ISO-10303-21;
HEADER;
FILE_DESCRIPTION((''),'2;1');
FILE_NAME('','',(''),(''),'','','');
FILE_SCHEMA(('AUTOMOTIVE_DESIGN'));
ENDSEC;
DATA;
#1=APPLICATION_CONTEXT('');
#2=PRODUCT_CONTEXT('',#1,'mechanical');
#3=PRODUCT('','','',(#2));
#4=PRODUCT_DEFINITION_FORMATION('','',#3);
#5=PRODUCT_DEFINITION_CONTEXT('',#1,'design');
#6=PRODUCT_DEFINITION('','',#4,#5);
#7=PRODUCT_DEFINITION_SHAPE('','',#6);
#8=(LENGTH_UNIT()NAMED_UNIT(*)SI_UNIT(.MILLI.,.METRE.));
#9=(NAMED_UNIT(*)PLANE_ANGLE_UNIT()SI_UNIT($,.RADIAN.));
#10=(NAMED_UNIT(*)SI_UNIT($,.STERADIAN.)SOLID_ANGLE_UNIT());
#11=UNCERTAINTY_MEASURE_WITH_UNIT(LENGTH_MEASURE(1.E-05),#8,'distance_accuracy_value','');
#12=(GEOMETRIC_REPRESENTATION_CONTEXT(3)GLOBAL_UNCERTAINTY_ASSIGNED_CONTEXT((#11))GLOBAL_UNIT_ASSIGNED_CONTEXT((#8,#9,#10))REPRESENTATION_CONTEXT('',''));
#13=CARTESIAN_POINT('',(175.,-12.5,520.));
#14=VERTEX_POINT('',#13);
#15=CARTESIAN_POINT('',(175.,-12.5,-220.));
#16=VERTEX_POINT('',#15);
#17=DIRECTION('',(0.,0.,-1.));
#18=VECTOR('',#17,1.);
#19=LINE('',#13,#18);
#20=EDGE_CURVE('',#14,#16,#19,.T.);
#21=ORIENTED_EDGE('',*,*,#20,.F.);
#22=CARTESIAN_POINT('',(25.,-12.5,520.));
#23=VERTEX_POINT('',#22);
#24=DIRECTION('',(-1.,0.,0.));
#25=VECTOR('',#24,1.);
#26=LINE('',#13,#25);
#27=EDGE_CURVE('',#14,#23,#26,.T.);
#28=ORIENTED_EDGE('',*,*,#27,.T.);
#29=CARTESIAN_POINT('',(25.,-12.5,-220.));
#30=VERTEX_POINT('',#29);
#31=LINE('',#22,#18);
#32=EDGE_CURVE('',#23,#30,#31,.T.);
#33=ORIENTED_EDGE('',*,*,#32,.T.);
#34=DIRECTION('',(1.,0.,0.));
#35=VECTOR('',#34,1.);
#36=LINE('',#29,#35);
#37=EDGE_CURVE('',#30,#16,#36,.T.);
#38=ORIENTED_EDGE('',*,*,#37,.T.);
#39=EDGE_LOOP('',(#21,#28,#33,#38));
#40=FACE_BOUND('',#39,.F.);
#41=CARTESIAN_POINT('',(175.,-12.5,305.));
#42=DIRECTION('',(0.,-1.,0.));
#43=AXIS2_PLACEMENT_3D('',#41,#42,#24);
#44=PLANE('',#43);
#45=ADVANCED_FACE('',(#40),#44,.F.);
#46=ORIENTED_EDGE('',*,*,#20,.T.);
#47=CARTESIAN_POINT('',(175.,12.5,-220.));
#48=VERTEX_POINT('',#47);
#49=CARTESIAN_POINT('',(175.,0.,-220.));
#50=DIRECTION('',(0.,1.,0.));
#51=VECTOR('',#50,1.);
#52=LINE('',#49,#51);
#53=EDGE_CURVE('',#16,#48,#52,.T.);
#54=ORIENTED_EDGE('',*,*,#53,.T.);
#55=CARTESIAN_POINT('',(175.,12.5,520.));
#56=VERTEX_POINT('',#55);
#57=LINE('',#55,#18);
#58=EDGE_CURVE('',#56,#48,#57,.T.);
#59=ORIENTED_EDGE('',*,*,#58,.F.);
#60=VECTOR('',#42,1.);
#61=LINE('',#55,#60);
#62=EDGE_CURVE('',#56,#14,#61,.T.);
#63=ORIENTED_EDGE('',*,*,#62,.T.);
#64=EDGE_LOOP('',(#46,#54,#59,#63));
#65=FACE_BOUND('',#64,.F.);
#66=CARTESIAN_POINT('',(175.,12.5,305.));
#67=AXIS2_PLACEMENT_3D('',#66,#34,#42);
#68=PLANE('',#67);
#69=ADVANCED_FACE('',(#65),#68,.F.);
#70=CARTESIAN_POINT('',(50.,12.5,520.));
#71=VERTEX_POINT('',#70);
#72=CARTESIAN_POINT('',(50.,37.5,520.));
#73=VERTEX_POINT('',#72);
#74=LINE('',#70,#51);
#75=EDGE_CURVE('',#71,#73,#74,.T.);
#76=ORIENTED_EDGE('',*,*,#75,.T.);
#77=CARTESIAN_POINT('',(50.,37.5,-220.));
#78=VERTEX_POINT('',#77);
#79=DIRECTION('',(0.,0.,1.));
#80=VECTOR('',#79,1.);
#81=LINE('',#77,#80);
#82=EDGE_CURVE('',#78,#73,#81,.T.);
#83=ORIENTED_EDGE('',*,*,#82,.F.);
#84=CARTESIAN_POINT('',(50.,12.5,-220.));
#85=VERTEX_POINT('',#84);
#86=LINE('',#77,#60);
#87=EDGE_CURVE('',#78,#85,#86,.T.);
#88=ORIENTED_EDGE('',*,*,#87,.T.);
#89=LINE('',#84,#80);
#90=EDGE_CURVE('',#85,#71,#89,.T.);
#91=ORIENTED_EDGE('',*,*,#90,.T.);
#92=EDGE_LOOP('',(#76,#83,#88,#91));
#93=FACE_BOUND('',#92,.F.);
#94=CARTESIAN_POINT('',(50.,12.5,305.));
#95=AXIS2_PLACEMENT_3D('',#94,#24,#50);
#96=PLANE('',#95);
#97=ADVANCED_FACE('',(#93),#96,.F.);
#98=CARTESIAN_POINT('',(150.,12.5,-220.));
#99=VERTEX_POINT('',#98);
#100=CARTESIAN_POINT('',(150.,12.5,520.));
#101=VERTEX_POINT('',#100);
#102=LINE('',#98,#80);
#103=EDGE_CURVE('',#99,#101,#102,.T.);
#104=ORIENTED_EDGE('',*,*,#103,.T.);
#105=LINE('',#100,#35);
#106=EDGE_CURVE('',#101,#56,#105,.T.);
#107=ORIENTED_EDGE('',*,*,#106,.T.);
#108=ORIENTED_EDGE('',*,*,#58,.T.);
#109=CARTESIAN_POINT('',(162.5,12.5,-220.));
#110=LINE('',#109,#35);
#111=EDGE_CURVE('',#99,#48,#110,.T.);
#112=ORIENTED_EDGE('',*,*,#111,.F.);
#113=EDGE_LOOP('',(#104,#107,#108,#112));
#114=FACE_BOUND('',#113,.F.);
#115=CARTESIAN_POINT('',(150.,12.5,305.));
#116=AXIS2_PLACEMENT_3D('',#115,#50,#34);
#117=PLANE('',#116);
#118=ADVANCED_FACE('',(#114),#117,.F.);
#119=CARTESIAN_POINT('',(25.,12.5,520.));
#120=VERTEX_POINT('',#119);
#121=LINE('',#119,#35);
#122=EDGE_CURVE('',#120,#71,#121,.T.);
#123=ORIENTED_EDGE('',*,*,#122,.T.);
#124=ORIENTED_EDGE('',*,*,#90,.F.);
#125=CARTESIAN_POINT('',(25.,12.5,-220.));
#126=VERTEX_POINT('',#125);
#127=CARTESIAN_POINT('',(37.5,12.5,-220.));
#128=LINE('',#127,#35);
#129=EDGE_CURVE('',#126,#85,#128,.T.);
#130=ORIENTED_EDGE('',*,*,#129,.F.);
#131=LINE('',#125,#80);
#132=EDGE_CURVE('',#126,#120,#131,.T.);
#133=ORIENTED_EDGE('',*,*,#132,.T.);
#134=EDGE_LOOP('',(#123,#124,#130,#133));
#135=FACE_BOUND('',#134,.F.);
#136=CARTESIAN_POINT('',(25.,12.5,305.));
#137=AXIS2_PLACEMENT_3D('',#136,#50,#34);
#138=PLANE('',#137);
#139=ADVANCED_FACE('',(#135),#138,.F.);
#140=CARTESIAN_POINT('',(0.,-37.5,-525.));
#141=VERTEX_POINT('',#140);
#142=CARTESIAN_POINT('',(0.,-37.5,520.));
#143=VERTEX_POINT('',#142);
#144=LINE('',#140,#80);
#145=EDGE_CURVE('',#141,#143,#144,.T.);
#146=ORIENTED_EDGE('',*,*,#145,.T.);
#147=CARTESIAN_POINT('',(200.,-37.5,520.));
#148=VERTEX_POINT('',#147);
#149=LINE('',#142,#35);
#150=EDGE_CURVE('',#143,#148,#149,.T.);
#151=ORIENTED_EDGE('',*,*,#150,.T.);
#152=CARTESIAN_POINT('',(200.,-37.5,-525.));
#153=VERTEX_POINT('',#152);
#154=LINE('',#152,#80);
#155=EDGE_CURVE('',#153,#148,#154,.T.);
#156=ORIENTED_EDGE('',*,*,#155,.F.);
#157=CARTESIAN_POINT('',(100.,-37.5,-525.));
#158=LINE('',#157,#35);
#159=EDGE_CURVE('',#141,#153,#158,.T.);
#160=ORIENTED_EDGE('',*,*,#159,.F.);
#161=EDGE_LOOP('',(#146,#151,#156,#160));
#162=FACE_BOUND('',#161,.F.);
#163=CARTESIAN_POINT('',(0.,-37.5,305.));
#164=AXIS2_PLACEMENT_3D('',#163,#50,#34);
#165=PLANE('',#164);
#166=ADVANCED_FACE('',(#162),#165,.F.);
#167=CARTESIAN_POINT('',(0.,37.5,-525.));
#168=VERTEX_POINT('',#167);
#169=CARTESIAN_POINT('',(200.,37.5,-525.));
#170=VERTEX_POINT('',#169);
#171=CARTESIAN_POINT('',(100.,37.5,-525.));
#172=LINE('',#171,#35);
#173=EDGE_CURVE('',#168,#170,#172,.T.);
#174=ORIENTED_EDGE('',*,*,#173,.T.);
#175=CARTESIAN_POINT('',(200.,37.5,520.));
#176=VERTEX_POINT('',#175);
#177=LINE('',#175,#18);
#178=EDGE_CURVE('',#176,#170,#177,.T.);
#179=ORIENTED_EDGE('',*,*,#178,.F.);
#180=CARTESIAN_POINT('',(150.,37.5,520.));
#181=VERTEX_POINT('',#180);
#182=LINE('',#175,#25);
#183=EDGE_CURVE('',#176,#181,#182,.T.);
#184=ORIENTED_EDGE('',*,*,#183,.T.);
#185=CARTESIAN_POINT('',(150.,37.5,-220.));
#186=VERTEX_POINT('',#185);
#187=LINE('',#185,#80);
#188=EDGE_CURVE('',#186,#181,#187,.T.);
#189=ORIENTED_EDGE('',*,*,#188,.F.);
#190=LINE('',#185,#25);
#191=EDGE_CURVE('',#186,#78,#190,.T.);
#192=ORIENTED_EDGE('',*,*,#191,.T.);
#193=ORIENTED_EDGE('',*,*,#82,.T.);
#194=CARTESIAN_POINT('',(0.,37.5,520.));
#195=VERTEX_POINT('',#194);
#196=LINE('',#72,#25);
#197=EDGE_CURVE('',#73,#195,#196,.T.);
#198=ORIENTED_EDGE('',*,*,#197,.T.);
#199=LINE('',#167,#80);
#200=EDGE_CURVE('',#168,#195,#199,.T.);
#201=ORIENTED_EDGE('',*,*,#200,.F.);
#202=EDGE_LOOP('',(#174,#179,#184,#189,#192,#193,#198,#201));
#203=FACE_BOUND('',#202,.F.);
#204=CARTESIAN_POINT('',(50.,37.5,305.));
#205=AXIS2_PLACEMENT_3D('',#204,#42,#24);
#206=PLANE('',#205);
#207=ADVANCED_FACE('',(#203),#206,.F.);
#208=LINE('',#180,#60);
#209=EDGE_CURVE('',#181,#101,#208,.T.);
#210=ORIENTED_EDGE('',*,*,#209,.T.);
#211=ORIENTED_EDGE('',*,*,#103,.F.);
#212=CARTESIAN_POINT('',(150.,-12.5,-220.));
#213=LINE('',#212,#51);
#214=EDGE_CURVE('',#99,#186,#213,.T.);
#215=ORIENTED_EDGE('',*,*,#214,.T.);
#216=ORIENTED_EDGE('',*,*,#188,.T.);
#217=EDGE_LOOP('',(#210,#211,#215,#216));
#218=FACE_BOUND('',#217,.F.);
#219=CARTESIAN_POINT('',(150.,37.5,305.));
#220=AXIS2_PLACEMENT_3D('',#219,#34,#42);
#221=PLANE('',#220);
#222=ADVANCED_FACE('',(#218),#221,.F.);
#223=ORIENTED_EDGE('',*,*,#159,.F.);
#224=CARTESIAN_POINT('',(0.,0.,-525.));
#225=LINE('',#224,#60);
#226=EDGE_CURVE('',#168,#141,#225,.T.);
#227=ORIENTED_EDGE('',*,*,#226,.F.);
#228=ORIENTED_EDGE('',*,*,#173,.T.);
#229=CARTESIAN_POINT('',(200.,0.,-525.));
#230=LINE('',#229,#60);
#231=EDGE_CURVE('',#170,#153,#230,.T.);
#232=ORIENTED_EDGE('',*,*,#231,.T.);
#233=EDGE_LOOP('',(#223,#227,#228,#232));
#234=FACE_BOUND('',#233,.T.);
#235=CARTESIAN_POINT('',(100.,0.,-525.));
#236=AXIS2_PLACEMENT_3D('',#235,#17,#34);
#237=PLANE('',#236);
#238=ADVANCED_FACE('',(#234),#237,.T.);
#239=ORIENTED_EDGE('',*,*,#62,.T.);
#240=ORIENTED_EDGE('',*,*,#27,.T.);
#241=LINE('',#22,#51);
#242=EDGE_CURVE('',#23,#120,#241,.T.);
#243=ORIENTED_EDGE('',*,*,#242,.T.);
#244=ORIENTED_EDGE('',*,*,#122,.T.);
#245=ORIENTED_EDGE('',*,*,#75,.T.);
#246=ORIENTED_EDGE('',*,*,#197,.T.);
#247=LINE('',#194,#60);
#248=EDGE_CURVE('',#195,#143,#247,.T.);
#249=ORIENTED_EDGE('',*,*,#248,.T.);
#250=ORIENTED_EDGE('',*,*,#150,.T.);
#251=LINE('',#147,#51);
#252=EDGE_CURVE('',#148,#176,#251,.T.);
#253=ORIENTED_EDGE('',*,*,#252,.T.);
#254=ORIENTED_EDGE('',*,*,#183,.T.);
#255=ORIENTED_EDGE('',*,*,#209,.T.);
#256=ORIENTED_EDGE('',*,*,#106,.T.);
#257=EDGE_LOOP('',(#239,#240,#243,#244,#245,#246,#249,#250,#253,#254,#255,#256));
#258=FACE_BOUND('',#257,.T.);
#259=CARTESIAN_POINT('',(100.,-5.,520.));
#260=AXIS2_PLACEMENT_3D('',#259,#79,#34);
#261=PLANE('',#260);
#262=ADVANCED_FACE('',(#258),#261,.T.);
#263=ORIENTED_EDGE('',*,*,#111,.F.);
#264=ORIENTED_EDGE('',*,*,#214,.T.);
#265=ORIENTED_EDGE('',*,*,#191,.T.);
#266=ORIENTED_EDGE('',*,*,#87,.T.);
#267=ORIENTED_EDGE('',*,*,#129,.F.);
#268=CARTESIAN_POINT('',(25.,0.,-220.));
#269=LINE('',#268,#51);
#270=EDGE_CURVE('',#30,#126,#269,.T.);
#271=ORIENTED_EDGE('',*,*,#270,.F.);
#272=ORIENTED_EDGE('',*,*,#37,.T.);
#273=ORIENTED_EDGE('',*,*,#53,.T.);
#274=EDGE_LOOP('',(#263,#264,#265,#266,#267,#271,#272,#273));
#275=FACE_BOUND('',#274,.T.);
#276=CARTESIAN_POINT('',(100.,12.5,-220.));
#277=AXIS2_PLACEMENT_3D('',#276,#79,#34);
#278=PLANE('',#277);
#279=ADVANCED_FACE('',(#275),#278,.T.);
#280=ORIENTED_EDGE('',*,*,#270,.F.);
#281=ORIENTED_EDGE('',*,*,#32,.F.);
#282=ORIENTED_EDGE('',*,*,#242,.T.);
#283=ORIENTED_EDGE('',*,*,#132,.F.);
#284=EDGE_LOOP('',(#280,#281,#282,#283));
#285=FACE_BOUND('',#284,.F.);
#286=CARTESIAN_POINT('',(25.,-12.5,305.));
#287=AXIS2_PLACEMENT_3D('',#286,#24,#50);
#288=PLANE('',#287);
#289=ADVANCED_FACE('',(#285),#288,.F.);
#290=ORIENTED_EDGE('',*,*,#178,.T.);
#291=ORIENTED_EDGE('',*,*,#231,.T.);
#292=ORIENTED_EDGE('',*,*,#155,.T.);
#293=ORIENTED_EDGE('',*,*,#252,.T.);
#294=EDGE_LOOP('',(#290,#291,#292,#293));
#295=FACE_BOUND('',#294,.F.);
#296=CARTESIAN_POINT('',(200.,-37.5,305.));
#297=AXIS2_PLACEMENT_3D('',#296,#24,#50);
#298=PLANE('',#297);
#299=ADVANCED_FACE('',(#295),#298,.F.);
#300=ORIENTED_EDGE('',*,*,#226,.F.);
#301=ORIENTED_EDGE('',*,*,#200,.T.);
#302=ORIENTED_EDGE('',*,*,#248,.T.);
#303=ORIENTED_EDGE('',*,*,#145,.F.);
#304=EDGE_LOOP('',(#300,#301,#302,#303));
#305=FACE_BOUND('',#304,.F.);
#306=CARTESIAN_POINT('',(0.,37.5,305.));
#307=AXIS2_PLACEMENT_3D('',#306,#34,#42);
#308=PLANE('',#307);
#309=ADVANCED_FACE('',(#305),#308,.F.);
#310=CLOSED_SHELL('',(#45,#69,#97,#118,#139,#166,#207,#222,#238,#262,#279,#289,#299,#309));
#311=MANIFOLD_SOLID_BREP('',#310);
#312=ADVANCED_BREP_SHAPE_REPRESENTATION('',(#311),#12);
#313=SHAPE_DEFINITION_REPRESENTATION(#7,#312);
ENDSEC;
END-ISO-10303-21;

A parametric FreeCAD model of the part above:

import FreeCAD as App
import Part
import Sketcher


def add_polygon(sketch, points):
    """Adds a closed chain of lines whose ends are joined by coincident constraints."""
    first, n = sketch.GeometryCount, len(points)
    for a, b in zip(points, points[1:] + points[:1]):
        sketch.addGeometry(Part.LineSegment(App.Vector(*a, 0), App.Vector(*b, 0)), False)
    for i in range(n):
        sketch.addConstraint(Sketcher.Constraint("Coincident", first + i, 2, first + (i + 1) % n, 1))

doc = App.newDocument("Part")
body = doc.addObject("PartDesign::Body", "Body")

# Sketch on YZ plane
sketch1 = doc.addObject("Sketcher::SketchObject", "Sketch")
body.addObject(sketch1)
sketch1.AttachmentSupport = (doc.YZ_Plane, [""])
sketch1.MapMode = "FlatFace"
add_polygon(sketch1, [(-38, 305), (-38, -305), (38, -305), (38, 305)])  # lines 0-3
sketch1.addConstraint([
    Sketcher.Constraint("Vertical", 0),
    Sketcher.Constraint("Horizontal", 1),
    Sketcher.Constraint("Vertical", 2),
    Sketcher.Constraint("Horizontal", 3),
    Sketcher.Constraint("Symmetric", 0, 2, 2, 2, -1, 1),
    Sketcher.Constraint("DistanceX", 1, 1, 1, 2, 75.0),
    Sketcher.Constraint("DistanceY", 0, 2, 0, 1, 610.0),
])
pad1 = doc.addObject("PartDesign::Pad", "Pad")
body.addObject(pad1)
pad1.Profile = sketch1
pad1.Length = 200

# Sketch on XY plane
sketch2 = doc.addObject("Sketcher::SketchObject", "Sketch001")
body.addObject(sketch2)
sketch2.AttachmentSupport = (doc.XY_Plane, [""])
sketch2.MapMode = "FlatFace"
sketch2.AttachmentOffset = App.Placement(App.Vector(0, 0, 305), App.Rotation())
add_polygon(sketch2, [(150, 38), (50, 38), (50, 12), (25, 12), (25, -12), (175, -12), (175, 12), (150, 12)])  # lines 0-7
sketch2.addConstraint([
    Sketcher.Constraint("Horizontal", 0),
    Sketcher.Constraint("Vertical", 1),
    Sketcher.Constraint("Horizontal", 2),
    Sketcher.Constraint("Vertical", 3),
    Sketcher.Constraint("Horizontal", 4),
    Sketcher.Constraint("Vertical", 5),
    Sketcher.Constraint("Horizontal", 6),
    Sketcher.Constraint("Vertical", 7),
    Sketcher.Constraint("Horizontal", 2, 2, 5, 2),
    Sketcher.Constraint("Equal", 2, 6),
    Sketcher.Constraint("Equal", 6, 1),
    Sketcher.Constraint("Equal", 1, 3),
    Sketcher.Constraint("DistanceX", 0, 2, 0, 1, 100.0),
    Sketcher.Constraint("DistanceX", 2, 2, 2, 1, 25.0),
    Sketcher.Constraint("DistanceX", -1, 1, 0, 2, 50.0),
    Sketcher.Constraint("DistanceY", -1, 1, 0, 2, 37.5),
])
pocket1 = doc.addObject("PartDesign::Pocket", "Pocket")
body.addObject(pocket1)
pocket1.Profile = sketch2
pocket1.Length = 525

# Sketch on XY plane
sketch3 = doc.addObject("Sketcher::SketchObject", "Sketch002")
body.addObject(sketch3)
sketch3.AttachmentSupport = (doc.XY_Plane, [""])
sketch3.MapMode = "FlatFace"
sketch3.AttachmentOffset = App.Placement(App.Vector(0, 0, -305), App.Rotation())
add_polygon(sketch3, [(0, -38), (0, 38), (200, 38), (200, -38)])  # lines 0-3
sketch3.addConstraint([
    Sketcher.Constraint("Vertical", 0),
    Sketcher.Constraint("Horizontal", 1),
    Sketcher.Constraint("Vertical", 2),
    Sketcher.Constraint("Horizontal", 3),
    Sketcher.Constraint("Symmetric", 0, 2, 3, 2, -1, 1),
    Sketcher.Constraint("DistanceX", 1, 1, 1, 2, 200.0),
    Sketcher.Constraint("DistanceY", 0, 1, 0, 2, 75.0),
])
pad2 = doc.addObject("PartDesign::Pad", "Pad001")
body.addObject(pad2)
pad2.Profile = sketch3
pad2.Length = 220
pad2.Reversed = True

# Sketch on XY plane
sketch4 = doc.addObject("Sketcher::SketchObject", "Sketch003")
body.addObject(sketch4)
sketch4.AttachmentSupport = (doc.XY_Plane, [""])
sketch4.MapMode = "FlatFace"
sketch4.AttachmentOffset = App.Placement(App.Vector(0, 0, 305), App.Rotation())
add_polygon(sketch4, [(25, -12), (25, 12), (50, 12), (50, 38), (0, 38), (0, -38), (200, -38), (200, 38), (150, 38), (150, 12), (175, 12), (175, -12)])  # lines 0-11
sketch4.addConstraint([
    Sketcher.Constraint("Vertical", 0),
    Sketcher.Constraint("Horizontal", 1),
    Sketcher.Constraint("Vertical", 2),
    Sketcher.Constraint("Horizontal", 3),
    Sketcher.Constraint("Vertical", 4),
    Sketcher.Constraint("Horizontal", 5),
    Sketcher.Constraint("Vertical", 6),
    Sketcher.Constraint("Horizontal", 7),
    Sketcher.Constraint("Vertical", 8),
    Sketcher.Constraint("Horizontal", 9),
    Sketcher.Constraint("Vertical", 10),
    Sketcher.Constraint("Horizontal", 11),
    Sketcher.Constraint("Symmetric", 3, 2, 4, 2, -1, 1),
    Sketcher.Constraint("Horizontal", 3, 2, 6, 2),
    Sketcher.Constraint("Horizontal", 1, 2, 8, 2),
    Sketcher.Constraint("Equal", 3, 7),
    Sketcher.Constraint("Equal", 1, 9),
    Sketcher.Constraint("Equal", 9, 0),
    Sketcher.Constraint("Equal", 0, 2),
    Sketcher.Constraint("DistanceX", 1, 1, 1, 2, 25.0),
    Sketcher.Constraint("DistanceX", 3, 2, 3, 1, 50.0),
    Sketcher.Constraint("DistanceX", 5, 1, 5, 2, 200.0),
    Sketcher.Constraint("DistanceY", 4, 2, 4, 1, 75.0),
])
pad3 = doc.addObject("PartDesign::Pad", "Pad002")
body.addObject(pad3)
pad3.Profile = sketch4
pad3.Length = 215

doc.recompute()
